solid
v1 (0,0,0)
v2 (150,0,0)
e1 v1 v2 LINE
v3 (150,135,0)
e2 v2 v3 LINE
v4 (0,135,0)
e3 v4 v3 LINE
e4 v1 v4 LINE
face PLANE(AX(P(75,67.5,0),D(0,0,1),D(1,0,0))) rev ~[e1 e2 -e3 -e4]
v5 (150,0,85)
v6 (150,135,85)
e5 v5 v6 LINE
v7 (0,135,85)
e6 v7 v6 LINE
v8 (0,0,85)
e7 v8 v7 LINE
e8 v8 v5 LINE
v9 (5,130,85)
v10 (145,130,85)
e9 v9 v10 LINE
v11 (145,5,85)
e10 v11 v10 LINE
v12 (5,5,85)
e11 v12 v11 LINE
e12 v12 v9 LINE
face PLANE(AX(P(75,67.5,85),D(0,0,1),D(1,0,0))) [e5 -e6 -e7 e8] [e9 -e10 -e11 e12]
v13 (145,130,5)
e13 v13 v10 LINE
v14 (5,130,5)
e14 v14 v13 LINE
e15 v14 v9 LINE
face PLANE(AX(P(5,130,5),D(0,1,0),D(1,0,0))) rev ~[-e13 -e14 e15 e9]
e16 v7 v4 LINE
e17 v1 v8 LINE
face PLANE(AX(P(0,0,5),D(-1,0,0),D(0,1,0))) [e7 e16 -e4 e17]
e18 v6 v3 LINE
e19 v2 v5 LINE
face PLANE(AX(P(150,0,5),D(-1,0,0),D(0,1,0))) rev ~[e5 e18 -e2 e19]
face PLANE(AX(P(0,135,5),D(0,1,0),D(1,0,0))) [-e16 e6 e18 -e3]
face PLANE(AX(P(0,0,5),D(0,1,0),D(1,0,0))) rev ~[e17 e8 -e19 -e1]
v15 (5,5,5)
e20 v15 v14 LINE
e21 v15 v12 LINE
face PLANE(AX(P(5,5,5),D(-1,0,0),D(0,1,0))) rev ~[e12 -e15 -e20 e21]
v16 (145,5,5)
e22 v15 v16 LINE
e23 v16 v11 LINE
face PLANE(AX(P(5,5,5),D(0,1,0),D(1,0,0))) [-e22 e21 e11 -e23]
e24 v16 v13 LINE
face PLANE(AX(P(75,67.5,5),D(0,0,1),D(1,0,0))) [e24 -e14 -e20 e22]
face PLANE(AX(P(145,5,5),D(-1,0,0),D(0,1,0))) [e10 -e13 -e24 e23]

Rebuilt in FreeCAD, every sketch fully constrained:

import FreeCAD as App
import Part
import Sketcher
Q = App.Units.Quantity

doc = App.newDocument("Part")
body = doc.addObject("PartDesign::Body", "Body")

# Sketch on XY plane
sketch1 = body.newObject("Sketcher::SketchObject", "Sketch")
sketch1.AttachmentSupport = (doc.getObject("XY_Plane"), [""])
sketch1.MapMode = "FlatFace"
sketch1.addGeometry([
    Part.LineSegment(App.Vector(0, 135, 0), App.Vector(0, 0, 0)),
    Part.LineSegment(App.Vector(0, 0, 0), App.Vector(150, 0, 0)),
    Part.LineSegment(App.Vector(150, 0, 0), App.Vector(150, 135, 0)),
    Part.LineSegment(App.Vector(150, 135, 0), App.Vector(0, 135, 0)),
], False)
sketch1.addConstraint([
    Sketcher.Constraint("Coincident", 0, 2, 1, 1),
    Sketcher.Constraint("Coincident", 1, 2, 2, 1),
    Sketcher.Constraint("Coincident", 2, 2, 3, 1),
    Sketcher.Constraint("Coincident", 3, 2, 0, 1),
    Sketcher.Constraint("Vertical", 0),
    Sketcher.Constraint("Horizontal", 1),
    Sketcher.Constraint("Vertical", 2),
    Sketcher.Constraint("Horizontal", 3),
    Sketcher.Constraint("Coincident", 0, 2, -1, 1),
    Sketcher.Constraint("DistanceX", 1, 1, 1, 2, Q("150 mm")),
    Sketcher.Constraint("DistanceY", 0, 2, 0, 1, Q("135 mm")),
])
pad1 = body.newObject("PartDesign::Pad", "Pad")
pad1.Profile = sketch1
pad1.Length = 5

# Sketch on XY plane
sketch2 = body.newObject("Sketcher::SketchObject", "Sketch001")
sketch2.AttachmentSupport = (doc.getObject("XY_Plane"), [""])
sketch2.MapMode = "FlatFace"
sketch2.AttachmentOffset = App.Placement(App.Vector(0, 0, 5), App.Rotation())
sketch2.addGeometry([
    Part.LineSegment(App.Vector(0, 135, 0), App.Vector(0, 0, 0)),  # 0
    Part.LineSegment(App.Vector(0, 0, 0), App.Vector(150, 0, 0)),  # 1
    Part.LineSegment(App.Vector(150, 0, 0), App.Vector(150, 135, 0)),  # 2
    Part.LineSegment(App.Vector(150, 135, 0), App.Vector(0, 135, 0)),  # 3
    Part.LineSegment(App.Vector(145, 5, 0), App.Vector(5, 5, 0)),  # 4
    Part.LineSegment(App.Vector(5, 5, 0), App.Vector(5, 130, 0)),  # 5
    Part.LineSegment(App.Vector(5, 130, 0), App.Vector(145, 130, 0)),  # 6
    Part.LineSegment(App.Vector(145, 130, 0), App.Vector(145, 5, 0)),  # 7
], False)
sketch2.addConstraint([
    Sketcher.Constraint("Coincident", 0, 2, 1, 1),
    Sketcher.Constraint("Coincident", 1, 2, 2, 1),
    Sketcher.Constraint("Coincident", 2, 2, 3, 1),
    Sketcher.Constraint("Coincident", 3, 2, 0, 1),
    Sketcher.Constraint("Coincident", 4, 2, 5, 1),
    Sketcher.Constraint("Coincident", 5, 2, 6, 1),
    Sketcher.Constraint("Coincident", 6, 2, 7, 1),
    Sketcher.Constraint("Coincident", 7, 2, 4, 1),
    Sketcher.Constraint("Vertical", 0),
    Sketcher.Constraint("Horizontal", 1),
    Sketcher.Constraint("Vertical", 2),
    Sketcher.Constraint("Horizontal", 3),
    Sketcher.Constraint("Horizontal", 4),
    Sketcher.Constraint("Vertical", 5),
    Sketcher.Constraint("Horizontal", 6),
    Sketcher.Constraint("Vertical", 7),
    Sketcher.Constraint("Coincident", 0, 2, -1, 1),
    Sketcher.Constraint("DistanceX", 1, 1, 1, 2, Q("150 mm")),
    Sketcher.Constraint("DistanceX", 4, 2, 4, 1, Q("140 mm")),
    Sketcher.Constraint("DistanceY", 0, 2, 0, 1, Q("135 mm")),
    Sketcher.Constraint("DistanceY", 5, 1, 5, 2, Q("125 mm")),
    Sketcher.Constraint("DistanceX", -1, 1, 4, 2, Q("5 mm")),
    Sketcher.Constraint("DistanceY", -1, 1, 4, 2, Q("5 mm")),
])
pad2 = body.newObject("PartDesign::Pad", "Pad001")
pad2.Profile = sketch2
pad2.Length = 80

doc.recompute()
